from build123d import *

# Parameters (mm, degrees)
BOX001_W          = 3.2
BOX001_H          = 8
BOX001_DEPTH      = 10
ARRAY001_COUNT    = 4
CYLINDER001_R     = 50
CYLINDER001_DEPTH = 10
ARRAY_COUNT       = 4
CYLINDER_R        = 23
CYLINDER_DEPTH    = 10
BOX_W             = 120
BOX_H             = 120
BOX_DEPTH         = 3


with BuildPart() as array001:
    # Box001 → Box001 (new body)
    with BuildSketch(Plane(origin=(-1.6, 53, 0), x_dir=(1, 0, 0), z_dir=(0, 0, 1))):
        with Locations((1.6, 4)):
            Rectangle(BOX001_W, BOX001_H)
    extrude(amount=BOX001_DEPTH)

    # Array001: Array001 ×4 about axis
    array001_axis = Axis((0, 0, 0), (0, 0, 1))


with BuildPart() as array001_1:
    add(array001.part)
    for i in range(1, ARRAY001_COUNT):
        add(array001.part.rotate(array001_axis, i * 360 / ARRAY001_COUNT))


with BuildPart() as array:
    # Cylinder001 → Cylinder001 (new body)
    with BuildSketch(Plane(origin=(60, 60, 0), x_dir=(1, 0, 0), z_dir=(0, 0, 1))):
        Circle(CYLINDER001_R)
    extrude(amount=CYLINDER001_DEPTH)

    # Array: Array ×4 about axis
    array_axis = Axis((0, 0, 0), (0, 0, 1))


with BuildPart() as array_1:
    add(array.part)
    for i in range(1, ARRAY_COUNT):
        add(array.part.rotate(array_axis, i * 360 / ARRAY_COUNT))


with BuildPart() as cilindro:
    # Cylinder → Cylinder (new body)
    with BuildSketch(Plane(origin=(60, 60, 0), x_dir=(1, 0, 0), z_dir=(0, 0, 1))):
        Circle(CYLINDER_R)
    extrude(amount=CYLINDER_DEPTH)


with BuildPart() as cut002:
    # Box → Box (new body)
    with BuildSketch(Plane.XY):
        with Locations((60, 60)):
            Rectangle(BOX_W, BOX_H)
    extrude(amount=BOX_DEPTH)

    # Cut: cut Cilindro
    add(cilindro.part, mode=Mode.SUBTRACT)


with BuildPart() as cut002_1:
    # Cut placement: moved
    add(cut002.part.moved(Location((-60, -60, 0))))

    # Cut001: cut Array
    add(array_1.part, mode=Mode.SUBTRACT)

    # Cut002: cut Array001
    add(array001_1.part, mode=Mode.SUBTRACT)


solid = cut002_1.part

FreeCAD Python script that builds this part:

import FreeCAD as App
import Part
import Sketcher

V = App.Vector

doc = App.newDocument("Part")
body = doc.addObject("PartDesign::Body", "Body")

sketch1 = body.newObject("Sketcher::SketchObject", "Sketch")
sketch1.AttachmentSupport = (doc.getObject("XY_Plane"), [""])
sketch1.MapMode = "FlatFace"
sketch1.addGeometry(Part.LineSegment(V(-1.6, 61, 0), V(-1.6, 53, 0)), False)
sketch1.addGeometry(Part.LineSegment(V(-1.6, 53, 0), V(1.6, 53, 0)), False)
sketch1.addGeometry(Part.LineSegment(V(1.6, 53, 0), V(1.6, 61, 0)), False)
sketch1.addGeometry(Part.LineSegment(V(1.6, 61, 0), V(-1.6, 61, 0)), False)
sketch1.addConstraint(Sketcher.Constraint("Coincident", 0, 2, 1, 1))
sketch1.addConstraint(Sketcher.Constraint("Coincident", 1, 2, 2, 1))
sketch1.addConstraint(Sketcher.Constraint("Coincident", 2, 2, 3, 1))
sketch1.addConstraint(Sketcher.Constraint("Coincident", 3, 2, 0, 1))
sketch1.addConstraint(Sketcher.Constraint("Vertical", 0))
sketch1.addConstraint(Sketcher.Constraint("Horizontal", 1))
sketch1.addConstraint(Sketcher.Constraint("Vertical", 2))
sketch1.addConstraint(Sketcher.Constraint("Horizontal", 3))
sketch1.addConstraint(Sketcher.Constraint("DistanceY", 0, 2, 0, 1, 8.0))
sketch1.addConstraint(Sketcher.Constraint("DistanceX", 1, 1, 1, 2, 3.2))
sketch1.addConstraint(Sketcher.Constraint("DistanceY", -1, 1, 0, 2, 53.0))
sketch1.addConstraint(Sketcher.Constraint("DistanceX", 0, 2, -1, 1, 1.6))
pad1 = body.newObject("PartDesign::Pad", "Pad")
pad1.Profile = sketch1
pad1.Length = 10
body2 = doc.addObject("PartDesign::Body", "Body001")
body2.AllowCompound = True
doc.recompute()

body2.BaseFeature = body
doc.recompute()

body3 = doc.addObject("PartDesign::Body", "Body002")
body3.BaseFeature = body
body3.Placement = App.Placement(V(0, 0, 0), App.Rotation(V(0, 0, 1), 90))
boolean = body2.newObject("PartDesign::Boolean", "Boolean")
boolean.Type = "Fuse"
boolean.addObjects([body3])
doc.recompute()

body4 = doc.addObject("PartDesign::Body", "Body003")
body4.BaseFeature = body
body4.Placement = App.Placement(V(0, 0, 0), App.Rotation(V(0, 0, 1), 180))
boolean2 = body2.newObject("PartDesign::Boolean", "Boolean001")
boolean2.Type = "Fuse"
boolean2.addObjects([body4])
doc.recompute()

body.Placement = App.Placement(V(0, 0, 0), App.Rotation(V(0, 0, 1), 270))
boolean3 = body2.newObject("PartDesign::Boolean", "Boolean002")
boolean3.Type = "Fuse"
boolean3.addObjects([body])
body5 = doc.addObject("PartDesign::Body", "Body004")

sketch2 = body5.newObject("Sketcher::SketchObject", "Sketch001")
sketch2.AttachmentSupport = (doc.getObject("XY_Plane004"), [""])
sketch2.MapMode = "FlatFace"
sketch2.addGeometry(Part.Circle(V(60, 60, 0), V(0, 0, 1), 50), False)
sketch2.addConstraint(Sketcher.Constraint("Diameter", 0, 100.0))
sketch2.addConstraint(Sketcher.Constraint("DistanceX", -1, 1, 0, 3, 60.0))
sketch2.addConstraint(Sketcher.Constraint("DistanceY", -1, 1, 0, 3, 60.0))
pad2 = body5.newObject("PartDesign::Pad", "Pad001")
pad2.Profile = sketch2
pad2.Length = 10
body6 = doc.addObject("PartDesign::Body", "Body005")
body6.AllowCompound = True
doc.recompute()

body6.BaseFeature = body5
doc.recompute()

body7 = doc.addObject("PartDesign::Body", "Body006")
body7.BaseFeature = body5
body7.Placement = App.Placement(V(0, 0, 0), App.Rotation(V(0, 0, 1), 90))
boolean4 = body6.newObject("PartDesign::Boolean", "Boolean003")
boolean4.Type = "Fuse"
boolean4.addObjects([body7])
doc.recompute()

body8 = doc.addObject("PartDesign::Body", "Body007")
body8.BaseFeature = body5
body8.Placement = App.Placement(V(0, 0, 0), App.Rotation(V(0, 0, 1), 180))
boolean5 = body6.newObject("PartDesign::Boolean", "Boolean004")
boolean5.Type = "Fuse"
boolean5.addObjects([body8])
doc.recompute()

body5.Placement = App.Placement(V(0, 0, 0), App.Rotation(V(0, 0, 1), 270))
boolean6 = body6.newObject("PartDesign::Boolean", "Boolean005")
boolean6.Type = "Fuse"
boolean6.addObjects([body5])
body9 = doc.addObject("PartDesign::Body", "Body008")

sketch3 = body9.newObject("Sketcher::SketchObject", "Sketch002")
sketch3.AttachmentSupport = (doc.getObject("XY_Plane008"), [""])
sketch3.MapMode = "FlatFace"
sketch3.addGeometry(Part.Circle(V(60, 60, 0), V(0, 0, 1), 23), False)
sketch3.addConstraint(Sketcher.Constraint("Diameter", 0, 46.0))
sketch3.addConstraint(Sketcher.Constraint("DistanceX", -1, 1, 0, 3, 60.0))
sketch3.addConstraint(Sketcher.Constraint("DistanceY", -1, 1, 0, 3, 60.0))
pad3 = body9.newObject("PartDesign::Pad", "Pad002")
pad3.Profile = sketch3
pad3.Length = 10
body10 = doc.addObject("PartDesign::Body", "Body009")

sketch4 = body10.newObject("Sketcher::SketchObject", "Sketch003")
sketch4.AttachmentSupport = (doc.getObject("XY_Plane009"), [""])
sketch4.MapMode = "FlatFace"
sketch4.addGeometry(Part.LineSegment(V(0, 120, 0), V(0, 0, 0)), False)
sketch4.addGeometry(Part.LineSegment(V(0, 0, 0), V(120, 0, 0)), False)
sketch4.addGeometry(Part.LineSegment(V(120, 0, 0), V(120, 120, 0)), False)
sketch4.addGeometry(Part.LineSegment(V(120, 120, 0), V(0, 120, 0)), False)
sketch4.addConstraint(Sketcher.Constraint("Coincident", 0, 2, 1, 1))
sketch4.addConstraint(Sketcher.Constraint("Coincident", 1, 2, 2, 1))
sketch4.addConstraint(Sketcher.Constraint("Coincident", 2, 2, 3, 1))
sketch4.addConstraint(Sketcher.Constraint("Coincident", 3, 2, 0, 1))
sketch4.addConstraint(Sketcher.Constraint("Vertical", 0))
sketch4.addConstraint(Sketcher.Constraint("Horizontal", 1))
sketch4.addConstraint(Sketcher.Constraint("Vertical", 2))
sketch4.addConstraint(Sketcher.Constraint("Horizontal", 3))
sketch4.addConstraint(Sketcher.Constraint("Coincident", 0, 2, -1, 1))
sketch4.addConstraint(Sketcher.Constraint("Equal", 3, 0))
sketch4.addConstraint(Sketcher.Constraint("DistanceX", 1, 1, 1, 2, 120.0))
pad4 = body10.newObject("PartDesign::Pad", "Pad003")
pad4.Profile = sketch4
pad4.Length = 3
doc.recompute()

boolean7 = body10.newObject("PartDesign::Boolean", "Boolean006")
boolean7.Type = "Cut"
boolean7.addObjects([body9])
body11 = doc.addObject("PartDesign::Body", "Body010")
doc.recompute()

body10.Placement = App.Placement(V(-60, -60, 0), App.Rotation(V(0, 0, 1), 0))
boolean8 = body11.newObject("PartDesign::Boolean", "Boolean007")
boolean8.Type = "Fuse"
boolean8.addObjects([body10])
doc.recompute()

boolean9 = body11.newObject("PartDesign::Boolean", "Boolean008")
boolean9.Type = "Cut"
boolean9.addObjects([body6])
doc.recompute()

boolean10 = body11.newObject("PartDesign::Boolean", "Boolean009")
boolean10.Type = "Cut"
boolean10.addObjects([body2])

doc.recompute()
